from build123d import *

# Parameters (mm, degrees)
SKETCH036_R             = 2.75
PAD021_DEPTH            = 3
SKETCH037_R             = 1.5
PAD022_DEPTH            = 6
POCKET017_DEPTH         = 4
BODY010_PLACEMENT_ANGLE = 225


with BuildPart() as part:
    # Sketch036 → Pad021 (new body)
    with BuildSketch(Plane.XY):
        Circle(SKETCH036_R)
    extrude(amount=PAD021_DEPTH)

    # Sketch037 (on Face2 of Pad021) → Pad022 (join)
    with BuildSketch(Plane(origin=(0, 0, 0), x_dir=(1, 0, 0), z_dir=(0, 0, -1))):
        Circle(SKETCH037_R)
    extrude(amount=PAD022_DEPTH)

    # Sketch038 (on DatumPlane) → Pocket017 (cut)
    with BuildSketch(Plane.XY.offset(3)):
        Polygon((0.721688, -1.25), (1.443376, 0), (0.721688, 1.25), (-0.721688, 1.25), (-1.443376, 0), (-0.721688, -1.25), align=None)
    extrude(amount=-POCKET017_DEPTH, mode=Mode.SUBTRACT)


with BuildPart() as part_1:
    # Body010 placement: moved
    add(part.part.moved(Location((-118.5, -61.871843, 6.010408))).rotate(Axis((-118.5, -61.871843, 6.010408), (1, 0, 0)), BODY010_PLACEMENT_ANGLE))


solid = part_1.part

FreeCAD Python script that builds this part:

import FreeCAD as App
import Part
import Sketcher
Q = App.Units.Quantity

doc = App.newDocument("Part")
params = doc.addObject("Spreadsheet::Sheet", "Params")
for row, (alias, value) in enumerate([
    ("sketch1_diameter", "5.5 mm"),
    ("pad1_length", "3 mm"),
    ("sketch2_diameter", "3 mm"),
    ("pad2_length", "6 mm"),
    ("pocket1_length", "4 mm"),
], start=1):
    params.set(f"A{row}", alias)
    params.set(f"B{row}", "=" + value)
    params.setAlias(f"B{row}", alias)

body = doc.addObject("PartDesign::Body", "Body")

sketch1 = body.newObject("Sketcher::SketchObject", "Sketch")
sketch1.AttachmentSupport = (doc.getObject("XY_Plane"), [""])
sketch1.MapMode = "FlatFace"
sketch1.addGeometry(Part.Circle(App.Vector(0, 0, 0), App.Vector(0, 0, 1), 2.8), False)
sketch1.addConstraint(Sketcher.Constraint("Coincident", 0, 3, -1, 1))
sketch1.addConstraint(Sketcher.Constraint("Diameter", 0, 5.5))
sketch1.setExpression("Constraints[1]", "Params.sketch1_diameter")
pad1 = body.newObject("PartDesign::Pad", "Pad")
pad1.Profile = sketch1
pad1.setExpression("Length", "Params.pad1_length")

sketch2 = body.newObject("Sketcher::SketchObject", "Sketch001")
sketch2.AttachmentSupport = (doc.getObject("XY_Plane"), [""])
sketch2.MapMode = "FlatFace"
sketch2.addGeometry(Part.Circle(App.Vector(0, 0, 0), App.Vector(0, 0, 1), 1.5), False)
sketch2.addConstraint(Sketcher.Constraint("Coincident", 0, 3, -1, 1))
sketch2.addConstraint(Sketcher.Constraint("Diameter", 0, 3.0))
sketch2.setExpression("Constraints[1]", "Params.sketch2_diameter")
pad2 = body.newObject("PartDesign::Pad", "Pad001")
pad2.Profile = sketch2
pad2.setExpression("Length", "Params.pad2_length")
pad2.Reversed = True

sketch3 = body.newObject("Sketcher::SketchObject", "Sketch002")
sketch3.AttachmentSupport = (doc.getObject("XY_Plane"), [""])
sketch3.MapMode = "FlatFace"
sketch3.AttachmentOffset = App.Placement(App.Vector(0, 0, 3), App.Rotation())
sketch3.addGeometry(Part.LineSegment(App.Vector(0.7, -1.2, 0), App.Vector(1.4, 0, 0)), False)
sketch3.addGeometry(Part.LineSegment(App.Vector(1.4, 0, 0), App.Vector(0.7, 1.2, 0)), False)
sketch3.addGeometry(Part.LineSegment(App.Vector(0.7, 1.2, 0), App.Vector(-0.7, 1.2, 0)), False)
sketch3.addGeometry(Part.LineSegment(App.Vector(-0.7, 1.2, 0), App.Vector(-1.4, 0, 0)), False)
sketch3.addGeometry(Part.LineSegment(App.Vector(-1.4, 0, 0), App.Vector(-0.7, -1.2, 0)), False)
sketch3.addGeometry(Part.LineSegment(App.Vector(-0.7, -1.2, 0), App.Vector(0.7, -1.2, 0)), False)
sketch3.addConstraint(Sketcher.Constraint("Coincident", 0, 2, 1, 1))
sketch3.addConstraint(Sketcher.Constraint("Coincident", 1, 2, 2, 1))
sketch3.addConstraint(Sketcher.Constraint("Coincident", 2, 2, 3, 1))
sketch3.addConstraint(Sketcher.Constraint("Coincident", 3, 2, 4, 1))
sketch3.addConstraint(Sketcher.Constraint("Coincident", 4, 2, 5, 1))
sketch3.addConstraint(Sketcher.Constraint("Coincident", 5, 2, 0, 1))
sketch3.addConstraint(Sketcher.Constraint("Horizontal", 2))
sketch3.addConstraint(Sketcher.Constraint("Horizontal", 5))
sketch3.addConstraint(Sketcher.Constraint("Symmetric", 0, 2, 3, 2, -1, 1))
sketch3.addConstraint(Sketcher.Constraint("Symmetric", 1, 2, 4, 2, -1, 1))
sketch3.addConstraint(Sketcher.Constraint("PointOnObject", 0, 2, -1))
sketch3.addConstraint(Sketcher.Constraint("Parallel", 0, 3))
sketch3.addConstraint(Sketcher.Constraint("Vertical", 2, 2, 4, 2))
sketch3.addConstraint(Sketcher.Constraint("Angle", 0, Q("59.999994 deg")))
sketch3.addConstraint(Sketcher.Constraint("DistanceY", 4, 2, 2, 2, 2.5))
sketch3.addConstraint(Sketcher.Constraint("DistanceX", 2, 2, 2, 1, 1.443376))
pocket1 = body.newObject("PartDesign::Pocket", "Pocket")
pocket1.Profile = sketch3
pocket1.setExpression("Length", "Params.pocket1_length")
body2 = doc.addObject("PartDesign::Body", "Body001")
doc.recompute()

body.Placement = App.Placement(App.Vector(-118.5, -61.871843, 6.010408), App.Rotation(App.Vector(1, 0, 0), 225))
boolean = body2.newObject("PartDesign::Boolean", "Boolean")
boolean.Type = "Fuse"
boolean.addObjects([body])

doc.recompute()
